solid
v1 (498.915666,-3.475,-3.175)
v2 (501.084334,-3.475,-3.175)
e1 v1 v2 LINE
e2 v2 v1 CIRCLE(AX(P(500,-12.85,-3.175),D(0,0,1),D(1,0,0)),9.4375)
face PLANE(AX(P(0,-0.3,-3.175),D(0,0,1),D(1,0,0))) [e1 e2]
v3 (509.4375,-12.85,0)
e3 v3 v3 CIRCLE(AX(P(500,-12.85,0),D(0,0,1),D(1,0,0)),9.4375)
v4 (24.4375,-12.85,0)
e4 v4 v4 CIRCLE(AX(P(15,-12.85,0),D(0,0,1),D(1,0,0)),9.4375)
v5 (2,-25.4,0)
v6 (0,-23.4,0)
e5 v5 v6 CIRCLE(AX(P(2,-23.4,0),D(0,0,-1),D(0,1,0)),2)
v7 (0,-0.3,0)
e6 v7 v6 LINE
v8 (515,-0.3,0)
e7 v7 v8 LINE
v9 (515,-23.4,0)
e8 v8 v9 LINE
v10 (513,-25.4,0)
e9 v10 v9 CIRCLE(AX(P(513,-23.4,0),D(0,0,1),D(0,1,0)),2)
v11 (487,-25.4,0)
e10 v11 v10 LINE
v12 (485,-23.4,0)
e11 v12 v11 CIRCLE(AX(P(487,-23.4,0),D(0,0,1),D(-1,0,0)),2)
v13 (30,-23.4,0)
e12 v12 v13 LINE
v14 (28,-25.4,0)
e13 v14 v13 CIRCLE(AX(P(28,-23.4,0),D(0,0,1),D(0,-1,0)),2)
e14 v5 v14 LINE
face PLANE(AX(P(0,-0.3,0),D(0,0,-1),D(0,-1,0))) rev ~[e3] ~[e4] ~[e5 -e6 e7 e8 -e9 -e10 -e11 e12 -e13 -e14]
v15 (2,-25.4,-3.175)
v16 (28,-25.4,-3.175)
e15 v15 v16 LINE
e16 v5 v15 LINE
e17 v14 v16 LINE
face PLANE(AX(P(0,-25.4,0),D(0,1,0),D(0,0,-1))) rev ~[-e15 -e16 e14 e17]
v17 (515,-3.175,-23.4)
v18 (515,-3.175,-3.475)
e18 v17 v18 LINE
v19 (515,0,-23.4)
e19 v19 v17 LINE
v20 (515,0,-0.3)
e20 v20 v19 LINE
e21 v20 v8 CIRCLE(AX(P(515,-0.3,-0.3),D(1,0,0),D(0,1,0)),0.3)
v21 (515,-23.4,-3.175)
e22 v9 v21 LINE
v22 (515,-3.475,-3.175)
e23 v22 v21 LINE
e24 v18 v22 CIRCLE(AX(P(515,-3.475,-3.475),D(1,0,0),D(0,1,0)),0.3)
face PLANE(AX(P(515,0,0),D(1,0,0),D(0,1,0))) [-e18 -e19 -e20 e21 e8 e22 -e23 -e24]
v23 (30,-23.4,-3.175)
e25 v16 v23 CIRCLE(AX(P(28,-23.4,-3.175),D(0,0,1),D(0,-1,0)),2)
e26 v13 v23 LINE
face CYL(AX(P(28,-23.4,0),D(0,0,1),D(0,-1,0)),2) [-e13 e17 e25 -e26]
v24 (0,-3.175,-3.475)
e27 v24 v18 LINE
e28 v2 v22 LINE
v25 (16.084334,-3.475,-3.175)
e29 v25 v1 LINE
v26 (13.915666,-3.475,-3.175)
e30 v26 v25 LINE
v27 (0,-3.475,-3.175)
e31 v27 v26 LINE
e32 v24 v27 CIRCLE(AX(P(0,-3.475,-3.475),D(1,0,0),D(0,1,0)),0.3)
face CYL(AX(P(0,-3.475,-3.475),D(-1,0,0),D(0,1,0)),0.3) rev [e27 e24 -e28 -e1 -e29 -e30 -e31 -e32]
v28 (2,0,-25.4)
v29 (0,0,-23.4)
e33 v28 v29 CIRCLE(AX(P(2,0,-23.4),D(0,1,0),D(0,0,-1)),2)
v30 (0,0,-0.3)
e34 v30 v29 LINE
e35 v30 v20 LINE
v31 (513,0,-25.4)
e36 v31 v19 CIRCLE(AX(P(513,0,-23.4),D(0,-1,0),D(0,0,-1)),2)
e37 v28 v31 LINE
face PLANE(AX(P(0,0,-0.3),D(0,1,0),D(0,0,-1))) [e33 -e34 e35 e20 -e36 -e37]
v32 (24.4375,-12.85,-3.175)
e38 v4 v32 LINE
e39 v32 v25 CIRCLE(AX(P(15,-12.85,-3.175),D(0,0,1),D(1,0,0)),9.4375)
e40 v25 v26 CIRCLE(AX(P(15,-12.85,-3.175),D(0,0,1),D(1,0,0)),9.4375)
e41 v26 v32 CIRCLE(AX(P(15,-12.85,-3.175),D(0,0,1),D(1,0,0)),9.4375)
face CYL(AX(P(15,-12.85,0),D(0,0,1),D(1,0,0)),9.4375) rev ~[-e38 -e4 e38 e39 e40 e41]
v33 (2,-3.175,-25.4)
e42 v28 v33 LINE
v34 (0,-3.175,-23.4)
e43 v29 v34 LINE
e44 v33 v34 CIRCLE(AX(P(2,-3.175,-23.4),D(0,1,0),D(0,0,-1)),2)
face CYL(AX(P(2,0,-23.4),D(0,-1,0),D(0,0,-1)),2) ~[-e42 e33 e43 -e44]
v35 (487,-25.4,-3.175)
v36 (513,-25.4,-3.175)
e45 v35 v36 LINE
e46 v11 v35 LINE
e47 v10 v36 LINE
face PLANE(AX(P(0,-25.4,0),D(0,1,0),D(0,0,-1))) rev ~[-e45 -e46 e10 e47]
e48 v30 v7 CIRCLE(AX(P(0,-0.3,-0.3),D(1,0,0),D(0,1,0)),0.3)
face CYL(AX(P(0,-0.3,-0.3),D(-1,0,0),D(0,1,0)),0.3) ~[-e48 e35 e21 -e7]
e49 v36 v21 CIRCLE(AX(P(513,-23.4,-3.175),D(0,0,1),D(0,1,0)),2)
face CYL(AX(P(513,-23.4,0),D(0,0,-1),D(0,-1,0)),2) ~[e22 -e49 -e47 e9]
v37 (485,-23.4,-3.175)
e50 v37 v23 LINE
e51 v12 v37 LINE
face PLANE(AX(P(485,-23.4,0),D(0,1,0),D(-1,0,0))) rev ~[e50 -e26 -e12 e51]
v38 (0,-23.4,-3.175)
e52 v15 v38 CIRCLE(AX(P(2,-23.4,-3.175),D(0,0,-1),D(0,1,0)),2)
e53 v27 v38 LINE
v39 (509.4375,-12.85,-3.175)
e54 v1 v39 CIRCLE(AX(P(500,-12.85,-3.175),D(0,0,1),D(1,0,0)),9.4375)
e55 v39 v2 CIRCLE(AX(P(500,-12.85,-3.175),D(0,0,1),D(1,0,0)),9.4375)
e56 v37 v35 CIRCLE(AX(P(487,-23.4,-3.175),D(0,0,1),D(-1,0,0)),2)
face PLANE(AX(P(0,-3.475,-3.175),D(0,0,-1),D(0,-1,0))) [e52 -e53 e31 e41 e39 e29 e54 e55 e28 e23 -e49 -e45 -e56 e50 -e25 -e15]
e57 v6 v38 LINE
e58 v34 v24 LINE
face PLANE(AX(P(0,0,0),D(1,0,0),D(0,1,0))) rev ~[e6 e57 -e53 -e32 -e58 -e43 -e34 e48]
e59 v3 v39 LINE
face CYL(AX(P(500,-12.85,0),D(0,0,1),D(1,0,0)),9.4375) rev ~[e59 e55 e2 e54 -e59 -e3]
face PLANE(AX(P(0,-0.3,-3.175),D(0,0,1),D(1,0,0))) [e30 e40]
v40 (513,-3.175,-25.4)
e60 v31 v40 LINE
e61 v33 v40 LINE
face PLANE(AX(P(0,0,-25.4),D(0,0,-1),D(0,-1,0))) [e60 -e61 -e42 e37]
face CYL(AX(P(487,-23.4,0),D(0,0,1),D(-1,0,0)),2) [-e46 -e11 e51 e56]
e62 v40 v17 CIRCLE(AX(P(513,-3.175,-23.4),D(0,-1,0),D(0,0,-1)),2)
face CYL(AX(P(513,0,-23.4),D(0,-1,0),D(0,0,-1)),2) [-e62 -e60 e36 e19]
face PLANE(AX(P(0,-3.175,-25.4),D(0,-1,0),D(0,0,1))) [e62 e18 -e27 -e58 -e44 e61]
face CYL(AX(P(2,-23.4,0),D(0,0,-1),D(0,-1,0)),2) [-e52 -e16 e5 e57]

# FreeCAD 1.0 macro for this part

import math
import FreeCAD as App
import Part
import Sketcher

V = App.Vector
Q = App.Units.Quantity


def edges_at(feature, points):
    """Names of the edges that pass closest to the given points."""
    edges = feature.Shape.Edges
    near = lambda p: min(range(len(edges)), key=lambda i: edges[i].distToShape(Part.Vertex(*p))[0])
    return sorted({f"Edge{near(p) + 1}" for p in points})

doc = App.newDocument("Part")
body = doc.addObject("PartDesign::Body", "Body")

# Sketch on YZ plane
sketch1 = doc.addObject("Sketcher::SketchObject", "Sketch")
body.addObject(sketch1)
sketch1.AttachmentSupport = (doc.YZ_Plane, [""])
sketch1.MapMode = "FlatFace"
sketch1.addGeometry([
    Part.LineSegment(V(0, -25.4, 0), V(0, -0.3, 0)),  # 0
    Part.ArcOfCircle(Part.Circle(V(-0.3, -0.3, 0), V(0, 0, 1), 0.3), math.radians(0), math.radians(90)),  # 1
    Part.LineSegment(V(-0.3, 0, 0), V(-25.4, 0, 0)),  # 2
    Part.LineSegment(V(-25.4, 0, 0), V(-25.4, -3.175, 0)),  # 3
    Part.LineSegment(V(-25.4, -3.175, 0), V(-3.475, -3.175, 0)),  # 4
    Part.ArcOfCircle(Part.Circle(V(-3.475, -3.475, 0), V(0, 0, 1), 0.3), math.radians(0), math.radians(90)),  # 5
    Part.LineSegment(V(-3.175, -3.475, 0), V(-3.175, -25.4, 0)),  # 6
    Part.LineSegment(V(-3.175, -25.4, 0), V(0, -25.4, 0)),  # 7
], False)
sketch1.addConstraint([
    Sketcher.Constraint("Tangent", 0, 2, 1, 1),
    Sketcher.Constraint("Tangent", 1, 2, 2, 1),
    Sketcher.Constraint("Coincident", 2, 2, 3, 1),
    Sketcher.Constraint("Coincident", 3, 2, 4, 1),
    Sketcher.Constraint("Tangent", 4, 2, 5, 2),
    Sketcher.Constraint("Tangent", 5, 1, 6, 1),
    Sketcher.Constraint("Coincident", 6, 2, 7, 1),
    Sketcher.Constraint("Coincident", 7, 2, 0, 1),
    Sketcher.Constraint("Vertical", 0),
    Sketcher.Constraint("Horizontal", 2),
    Sketcher.Constraint("Vertical", 3),
    Sketcher.Constraint("Horizontal", 4),
    Sketcher.Constraint("Vertical", 6),
    Sketcher.Constraint("Horizontal", 7),
    Sketcher.Constraint("Equal", 1, 5),
    Sketcher.Constraint("PointOnObject", 0, 2, -2),
    Sketcher.Constraint("PointOnObject", 1, 2, -1),
    Sketcher.Constraint("Equal", 2, 0),
    Sketcher.Constraint("Equal", 7, 3),
    Sketcher.Constraint("Radius", 1, Q("0.3 mm")),
    Sketcher.Constraint("DistanceX", 2, 2, -1, 1, Q("25.4 mm")),
    Sketcher.Constraint("DistanceX", 7, 1, 7, 2, Q("3.175 mm")),
])
pad1 = doc.addObject("PartDesign::Pad", "Pad")
body.addObject(pad1)
pad1.Profile = sketch1
pad1.Length = 515
doc.recompute()

fillet = doc.addObject("PartDesign::Fillet", "Fillet")
body.addObject(fillet)
fillet.Base = (pad1, edges_at(pad1, [
    (515, -25.4, -1.587),
    (515, -1.587, -25.4),
    (0, -25.4, -1.587),
    (0, -1.587, -25.4),
]))
fillet.Radius = 2

# Sketch on XY plane
sketch2 = doc.addObject("Sketcher::SketchObject", "Sketch001")
body.addObject(sketch2)
sketch2.AttachmentSupport = (doc.XY_Plane, [""])
sketch2.MapMode = "FlatFace"
sketch2.addGeometry([
    Part.Circle(V(15, -12.85, 0), V(0, 0, 1), 9.4375),
    Part.Circle(V(500, -12.85, 0), V(0, 0, 1), 9.4375),
], False)
sketch2.addConstraint([
    Sketcher.Constraint("Equal", 0, 1),
    Sketcher.Constraint("Horizontal", 0, 3, 1, 3),
    Sketcher.Constraint("Diameter", 0, Q("18.875 mm")),
    Sketcher.Constraint("DistanceX", -1, 1, 0, 3, Q("15 mm")),
    Sketcher.Constraint("DistanceX", -1, 1, 1, 3, Q("500 mm")),
    Sketcher.Constraint("DistanceY", 0, 3, -1, 1, Q("12.85 mm")),
])
pocket1 = doc.addObject("PartDesign::Pocket", "Pocket")
body.addObject(pocket1)
pocket1.Profile = sketch2
pocket1.Length = 3.175

# Sketch on XY plane
sketch3 = doc.addObject("Sketcher::SketchObject", "Sketch002")
body.addObject(sketch3)
sketch3.AttachmentSupport = (doc.XY_Plane, [""])
sketch3.MapMode = "FlatFace"
sketch3.addGeometry([
    Part.ArcOfCircle(Part.Circle(V(28, -23.4, 0), V(0, 0, 1), 2), math.radians(-90), math.radians(0)),
    Part.LineSegment(V(28, -25.4, 0), V(487, -25.4, 0)),
    Part.ArcOfCircle(Part.Circle(V(487, -23.4, 0), V(0, 0, 1), 2), math.radians(180), math.radians(270)),
    Part.LineSegment(V(485, -23.4, 0), V(30, -23.4, 0)),
], False)
sketch3.addConstraint([
    Sketcher.Constraint("Tangent", 0, 1, 1, 1),
    Sketcher.Constraint("Tangent", 1, 2, 2, 2),
    Sketcher.Constraint("Coincident", 2, 1, 3, 1),
    Sketcher.Constraint("Coincident", 3, 2, 0, 2),
    Sketcher.Constraint("Horizontal", 1),
    Sketcher.Constraint("Horizontal", 3),
    Sketcher.Constraint("Equal", 0, 2),
    Sketcher.Constraint("Horizontal", 0, 3, 2, 1),
    Sketcher.Constraint("Radius", 0, Q("2 mm")),
    Sketcher.Constraint("DistanceX", 1, 1, 1, 2, Q("459 mm")),
    Sketcher.Constraint("DistanceX", -1, 1, 0, 3, Q("28 mm")),
    Sketcher.Constraint("DistanceY", 0, 3, -1, 1, Q("23.4 mm")),
])
pocket2 = doc.addObject("PartDesign::Pocket", "Pocket001")
body.addObject(pocket2)
pocket2.Profile = sketch3
pocket2.Length = 3.175

doc.recompute()
